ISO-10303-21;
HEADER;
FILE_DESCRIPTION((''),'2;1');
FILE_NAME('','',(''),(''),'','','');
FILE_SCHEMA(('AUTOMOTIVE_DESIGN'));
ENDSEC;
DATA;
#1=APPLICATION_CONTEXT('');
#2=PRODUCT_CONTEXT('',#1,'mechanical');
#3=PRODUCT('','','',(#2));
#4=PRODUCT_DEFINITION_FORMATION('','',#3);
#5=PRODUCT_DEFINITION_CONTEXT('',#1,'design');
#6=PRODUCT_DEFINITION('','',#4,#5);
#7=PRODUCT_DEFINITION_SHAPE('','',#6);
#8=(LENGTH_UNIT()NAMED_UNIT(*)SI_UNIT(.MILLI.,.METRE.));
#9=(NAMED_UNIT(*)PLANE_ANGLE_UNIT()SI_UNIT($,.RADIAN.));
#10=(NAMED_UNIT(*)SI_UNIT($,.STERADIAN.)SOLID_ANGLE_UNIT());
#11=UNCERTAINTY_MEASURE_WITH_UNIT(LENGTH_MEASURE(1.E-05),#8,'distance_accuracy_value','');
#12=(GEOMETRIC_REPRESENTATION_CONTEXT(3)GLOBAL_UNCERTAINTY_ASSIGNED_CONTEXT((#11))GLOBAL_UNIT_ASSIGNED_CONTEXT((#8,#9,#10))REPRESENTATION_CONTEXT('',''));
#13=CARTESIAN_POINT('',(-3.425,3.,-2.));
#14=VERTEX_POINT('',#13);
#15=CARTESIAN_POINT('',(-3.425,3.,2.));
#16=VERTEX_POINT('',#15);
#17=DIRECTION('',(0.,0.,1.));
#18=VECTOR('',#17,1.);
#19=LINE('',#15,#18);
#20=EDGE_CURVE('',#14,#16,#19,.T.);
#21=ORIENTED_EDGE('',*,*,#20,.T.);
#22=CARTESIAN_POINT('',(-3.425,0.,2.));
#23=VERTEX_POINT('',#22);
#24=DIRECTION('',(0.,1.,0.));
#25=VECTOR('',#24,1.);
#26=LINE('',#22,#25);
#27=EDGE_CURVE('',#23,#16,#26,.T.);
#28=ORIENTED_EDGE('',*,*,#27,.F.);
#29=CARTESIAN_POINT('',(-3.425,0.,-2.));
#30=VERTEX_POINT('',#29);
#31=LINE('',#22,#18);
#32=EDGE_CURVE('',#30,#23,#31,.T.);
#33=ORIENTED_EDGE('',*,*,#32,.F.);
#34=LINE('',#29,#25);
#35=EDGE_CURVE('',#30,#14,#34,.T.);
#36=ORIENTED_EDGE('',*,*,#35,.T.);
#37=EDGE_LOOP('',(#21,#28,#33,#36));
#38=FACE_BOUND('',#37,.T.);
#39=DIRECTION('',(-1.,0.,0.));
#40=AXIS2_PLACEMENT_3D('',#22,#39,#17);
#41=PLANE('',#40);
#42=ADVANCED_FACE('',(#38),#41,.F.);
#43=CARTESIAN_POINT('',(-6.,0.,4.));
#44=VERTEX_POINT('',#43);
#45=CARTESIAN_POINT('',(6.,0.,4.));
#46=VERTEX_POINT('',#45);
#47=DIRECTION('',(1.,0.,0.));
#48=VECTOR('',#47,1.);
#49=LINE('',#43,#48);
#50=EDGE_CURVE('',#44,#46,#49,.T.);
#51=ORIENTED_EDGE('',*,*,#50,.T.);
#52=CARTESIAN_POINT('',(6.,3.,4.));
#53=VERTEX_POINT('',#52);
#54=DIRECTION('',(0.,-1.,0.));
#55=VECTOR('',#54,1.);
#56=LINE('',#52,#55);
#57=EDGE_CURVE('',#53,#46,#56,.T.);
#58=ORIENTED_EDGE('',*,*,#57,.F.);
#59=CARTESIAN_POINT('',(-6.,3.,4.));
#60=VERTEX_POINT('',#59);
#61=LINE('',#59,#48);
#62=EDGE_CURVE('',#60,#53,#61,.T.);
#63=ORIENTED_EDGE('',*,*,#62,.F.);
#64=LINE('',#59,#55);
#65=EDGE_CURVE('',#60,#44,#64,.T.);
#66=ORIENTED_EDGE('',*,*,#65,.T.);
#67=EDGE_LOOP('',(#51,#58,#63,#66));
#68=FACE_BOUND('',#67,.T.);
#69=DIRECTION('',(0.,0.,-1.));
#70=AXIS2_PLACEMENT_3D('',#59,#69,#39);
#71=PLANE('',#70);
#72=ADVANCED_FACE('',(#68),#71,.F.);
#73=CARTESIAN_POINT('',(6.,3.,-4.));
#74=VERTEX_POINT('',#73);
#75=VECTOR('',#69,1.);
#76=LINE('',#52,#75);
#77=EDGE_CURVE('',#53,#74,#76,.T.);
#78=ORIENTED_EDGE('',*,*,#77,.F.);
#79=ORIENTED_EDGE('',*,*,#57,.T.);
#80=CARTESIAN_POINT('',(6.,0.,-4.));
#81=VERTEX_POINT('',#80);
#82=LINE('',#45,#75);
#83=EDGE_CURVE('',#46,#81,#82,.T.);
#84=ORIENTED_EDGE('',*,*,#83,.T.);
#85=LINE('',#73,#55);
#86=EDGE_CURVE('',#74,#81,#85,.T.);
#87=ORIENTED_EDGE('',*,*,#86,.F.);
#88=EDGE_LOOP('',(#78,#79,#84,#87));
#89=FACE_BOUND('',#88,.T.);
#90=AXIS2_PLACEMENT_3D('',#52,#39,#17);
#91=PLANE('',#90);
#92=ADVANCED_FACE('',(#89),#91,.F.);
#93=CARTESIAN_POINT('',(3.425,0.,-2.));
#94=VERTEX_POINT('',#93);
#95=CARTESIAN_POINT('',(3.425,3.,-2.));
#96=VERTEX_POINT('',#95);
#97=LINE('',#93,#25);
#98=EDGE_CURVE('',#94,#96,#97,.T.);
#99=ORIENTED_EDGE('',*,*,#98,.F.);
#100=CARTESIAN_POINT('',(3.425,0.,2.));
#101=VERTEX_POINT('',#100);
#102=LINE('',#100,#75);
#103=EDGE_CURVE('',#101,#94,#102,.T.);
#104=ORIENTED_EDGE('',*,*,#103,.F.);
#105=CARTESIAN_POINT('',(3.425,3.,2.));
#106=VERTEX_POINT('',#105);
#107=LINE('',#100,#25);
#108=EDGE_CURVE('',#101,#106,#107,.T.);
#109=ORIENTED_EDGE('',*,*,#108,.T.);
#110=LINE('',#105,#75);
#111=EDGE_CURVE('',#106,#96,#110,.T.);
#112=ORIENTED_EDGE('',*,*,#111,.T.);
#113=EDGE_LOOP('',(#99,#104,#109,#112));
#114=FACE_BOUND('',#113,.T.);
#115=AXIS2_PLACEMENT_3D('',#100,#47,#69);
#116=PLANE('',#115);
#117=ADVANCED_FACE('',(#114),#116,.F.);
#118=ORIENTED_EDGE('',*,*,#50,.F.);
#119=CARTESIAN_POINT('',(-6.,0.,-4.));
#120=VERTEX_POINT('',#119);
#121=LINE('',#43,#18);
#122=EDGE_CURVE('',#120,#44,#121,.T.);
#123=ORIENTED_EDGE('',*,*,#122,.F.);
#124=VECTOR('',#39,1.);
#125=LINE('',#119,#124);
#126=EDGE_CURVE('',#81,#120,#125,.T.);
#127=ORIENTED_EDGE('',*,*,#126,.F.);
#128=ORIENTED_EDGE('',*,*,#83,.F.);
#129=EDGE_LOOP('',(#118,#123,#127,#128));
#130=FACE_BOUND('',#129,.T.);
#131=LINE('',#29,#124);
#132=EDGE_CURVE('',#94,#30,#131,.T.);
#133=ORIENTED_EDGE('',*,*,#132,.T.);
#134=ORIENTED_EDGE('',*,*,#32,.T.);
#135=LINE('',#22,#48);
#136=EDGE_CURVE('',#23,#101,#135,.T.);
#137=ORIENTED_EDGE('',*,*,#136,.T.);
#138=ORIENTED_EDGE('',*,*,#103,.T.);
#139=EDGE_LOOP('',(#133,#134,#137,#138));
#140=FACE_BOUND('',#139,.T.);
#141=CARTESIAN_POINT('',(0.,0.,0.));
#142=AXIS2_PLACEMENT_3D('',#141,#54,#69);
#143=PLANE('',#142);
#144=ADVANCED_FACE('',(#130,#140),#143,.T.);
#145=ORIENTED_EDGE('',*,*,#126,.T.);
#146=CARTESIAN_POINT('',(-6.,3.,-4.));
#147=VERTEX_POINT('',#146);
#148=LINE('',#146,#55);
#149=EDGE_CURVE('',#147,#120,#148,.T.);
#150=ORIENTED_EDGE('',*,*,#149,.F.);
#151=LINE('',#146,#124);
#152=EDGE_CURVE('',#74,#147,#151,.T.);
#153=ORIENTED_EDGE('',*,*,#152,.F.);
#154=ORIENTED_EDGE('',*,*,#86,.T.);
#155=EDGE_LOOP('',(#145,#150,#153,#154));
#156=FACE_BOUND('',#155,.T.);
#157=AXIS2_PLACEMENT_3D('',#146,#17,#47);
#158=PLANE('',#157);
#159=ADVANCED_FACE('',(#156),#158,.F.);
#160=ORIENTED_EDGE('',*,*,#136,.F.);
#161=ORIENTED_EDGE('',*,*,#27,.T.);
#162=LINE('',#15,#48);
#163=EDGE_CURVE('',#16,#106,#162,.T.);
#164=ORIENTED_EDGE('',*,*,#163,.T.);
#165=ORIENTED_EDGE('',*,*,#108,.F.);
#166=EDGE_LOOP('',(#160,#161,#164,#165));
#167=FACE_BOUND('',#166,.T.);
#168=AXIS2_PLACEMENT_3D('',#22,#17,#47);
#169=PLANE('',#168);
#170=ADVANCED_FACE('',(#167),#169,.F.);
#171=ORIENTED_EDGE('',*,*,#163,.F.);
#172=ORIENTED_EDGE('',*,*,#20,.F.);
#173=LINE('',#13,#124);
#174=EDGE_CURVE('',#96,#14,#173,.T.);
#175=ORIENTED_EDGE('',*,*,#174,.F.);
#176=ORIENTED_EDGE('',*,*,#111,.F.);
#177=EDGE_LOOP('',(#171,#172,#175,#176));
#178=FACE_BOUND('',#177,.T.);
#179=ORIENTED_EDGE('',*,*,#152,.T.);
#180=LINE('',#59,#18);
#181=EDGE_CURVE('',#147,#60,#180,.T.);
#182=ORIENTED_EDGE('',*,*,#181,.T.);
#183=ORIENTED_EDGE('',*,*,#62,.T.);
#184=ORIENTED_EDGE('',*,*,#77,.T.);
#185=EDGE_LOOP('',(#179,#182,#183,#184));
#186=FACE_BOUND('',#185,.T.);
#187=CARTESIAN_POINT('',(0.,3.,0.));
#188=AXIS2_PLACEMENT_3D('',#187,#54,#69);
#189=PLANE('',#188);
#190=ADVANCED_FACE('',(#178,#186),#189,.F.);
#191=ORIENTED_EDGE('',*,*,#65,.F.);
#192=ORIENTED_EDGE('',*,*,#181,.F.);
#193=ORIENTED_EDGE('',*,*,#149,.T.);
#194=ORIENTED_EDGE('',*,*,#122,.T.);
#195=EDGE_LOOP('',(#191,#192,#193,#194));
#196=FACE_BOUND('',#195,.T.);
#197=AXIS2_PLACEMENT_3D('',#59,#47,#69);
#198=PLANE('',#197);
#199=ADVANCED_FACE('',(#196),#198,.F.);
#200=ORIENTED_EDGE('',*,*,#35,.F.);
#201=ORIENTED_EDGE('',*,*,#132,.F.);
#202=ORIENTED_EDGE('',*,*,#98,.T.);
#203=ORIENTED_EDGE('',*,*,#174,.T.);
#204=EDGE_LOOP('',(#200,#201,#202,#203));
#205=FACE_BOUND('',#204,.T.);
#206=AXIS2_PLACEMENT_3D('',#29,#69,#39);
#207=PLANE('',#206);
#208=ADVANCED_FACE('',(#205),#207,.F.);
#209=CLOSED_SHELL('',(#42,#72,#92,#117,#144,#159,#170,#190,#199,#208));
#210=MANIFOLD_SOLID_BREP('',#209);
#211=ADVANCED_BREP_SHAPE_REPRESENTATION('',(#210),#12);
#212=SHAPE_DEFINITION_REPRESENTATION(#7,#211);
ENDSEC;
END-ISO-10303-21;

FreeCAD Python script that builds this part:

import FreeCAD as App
import Part
import Sketcher

V = App.Vector


def add_polygon(sketch, points):
    """Adds a closed chain of lines whose ends are joined by coincident constraints."""
    first, n = sketch.GeometryCount, len(points)
    for a, b in zip(points, points[1:] + points[:1]):
        sketch.addGeometry(Part.LineSegment(App.Vector(*a, 0), App.Vector(*b, 0)), False)
    for i in range(n):
        sketch.addConstraint(Sketcher.Constraint("Coincident", first + i, 2, first + (i + 1) % n, 1))

doc = App.newDocument("Part")
body = doc.addObject("PartDesign::Body", "Body")

# Sketch on XZ plane
sketch1 = body.newObject("Sketcher::SketchObject", "Sketch")
sketch1.AttachmentSupport = (doc.getObject("XZ_Plane"), [""])
sketch1.MapMode = "FlatFace"
add_polygon(sketch1, [(-6, -4), (-6, 4), (6, 4), (6, -4)])  # lines 0-3
sketch1.addConstraint([
    Sketcher.Constraint("Vertical", 0),
    Sketcher.Constraint("Horizontal", 1),
    Sketcher.Constraint("Vertical", 2),
    Sketcher.Constraint("Horizontal", 3),
    Sketcher.Constraint("Symmetric", 0, 2, 2, 2, -1, 1),
    Sketcher.Constraint("DistanceX", 1, 1, 1, 2, 12.0),
    Sketcher.Constraint("DistanceY", 0, 1, 0, 2, 8.0),
])
pad1 = body.newObject("PartDesign::Pad", "Pad")
pad1.Profile = sketch1
pad1.Length = 3
pad1.Reversed = True

# Sketch on XZ plane
sketch2 = body.newObject("Sketcher::SketchObject", "Sketch001")
sketch2.AttachmentSupport = (doc.getObject("XZ_Plane"), [""])
sketch2.MapMode = "FlatFace"
sketch2.AttachmentOffset = App.Placement(V(0, 0, -3), App.Rotation())
add_polygon(sketch2, [(-3.4, -2), (-3.4, 2), (3.4, 2), (3.4, -2)])  # lines 0-3
sketch2.addConstraint([
    Sketcher.Constraint("Vertical", 0),
    Sketcher.Constraint("Horizontal", 1),
    Sketcher.Constraint("Vertical", 2),
    Sketcher.Constraint("Horizontal", 3),
    Sketcher.Constraint("Symmetric", 0, 2, 2, 2, -1, 1),
    Sketcher.Constraint("DistanceY", 0, 1, 0, 2, 4.0),
    Sketcher.Constraint("DistanceX", 1, 1, 1, 2, 6.85),
])
pocket1 = body.newObject("PartDesign::Pocket", "Pocket")
pocket1.Profile = sketch2
pocket1.Length = 3
pocket1.Reversed = True

doc.recompute()
